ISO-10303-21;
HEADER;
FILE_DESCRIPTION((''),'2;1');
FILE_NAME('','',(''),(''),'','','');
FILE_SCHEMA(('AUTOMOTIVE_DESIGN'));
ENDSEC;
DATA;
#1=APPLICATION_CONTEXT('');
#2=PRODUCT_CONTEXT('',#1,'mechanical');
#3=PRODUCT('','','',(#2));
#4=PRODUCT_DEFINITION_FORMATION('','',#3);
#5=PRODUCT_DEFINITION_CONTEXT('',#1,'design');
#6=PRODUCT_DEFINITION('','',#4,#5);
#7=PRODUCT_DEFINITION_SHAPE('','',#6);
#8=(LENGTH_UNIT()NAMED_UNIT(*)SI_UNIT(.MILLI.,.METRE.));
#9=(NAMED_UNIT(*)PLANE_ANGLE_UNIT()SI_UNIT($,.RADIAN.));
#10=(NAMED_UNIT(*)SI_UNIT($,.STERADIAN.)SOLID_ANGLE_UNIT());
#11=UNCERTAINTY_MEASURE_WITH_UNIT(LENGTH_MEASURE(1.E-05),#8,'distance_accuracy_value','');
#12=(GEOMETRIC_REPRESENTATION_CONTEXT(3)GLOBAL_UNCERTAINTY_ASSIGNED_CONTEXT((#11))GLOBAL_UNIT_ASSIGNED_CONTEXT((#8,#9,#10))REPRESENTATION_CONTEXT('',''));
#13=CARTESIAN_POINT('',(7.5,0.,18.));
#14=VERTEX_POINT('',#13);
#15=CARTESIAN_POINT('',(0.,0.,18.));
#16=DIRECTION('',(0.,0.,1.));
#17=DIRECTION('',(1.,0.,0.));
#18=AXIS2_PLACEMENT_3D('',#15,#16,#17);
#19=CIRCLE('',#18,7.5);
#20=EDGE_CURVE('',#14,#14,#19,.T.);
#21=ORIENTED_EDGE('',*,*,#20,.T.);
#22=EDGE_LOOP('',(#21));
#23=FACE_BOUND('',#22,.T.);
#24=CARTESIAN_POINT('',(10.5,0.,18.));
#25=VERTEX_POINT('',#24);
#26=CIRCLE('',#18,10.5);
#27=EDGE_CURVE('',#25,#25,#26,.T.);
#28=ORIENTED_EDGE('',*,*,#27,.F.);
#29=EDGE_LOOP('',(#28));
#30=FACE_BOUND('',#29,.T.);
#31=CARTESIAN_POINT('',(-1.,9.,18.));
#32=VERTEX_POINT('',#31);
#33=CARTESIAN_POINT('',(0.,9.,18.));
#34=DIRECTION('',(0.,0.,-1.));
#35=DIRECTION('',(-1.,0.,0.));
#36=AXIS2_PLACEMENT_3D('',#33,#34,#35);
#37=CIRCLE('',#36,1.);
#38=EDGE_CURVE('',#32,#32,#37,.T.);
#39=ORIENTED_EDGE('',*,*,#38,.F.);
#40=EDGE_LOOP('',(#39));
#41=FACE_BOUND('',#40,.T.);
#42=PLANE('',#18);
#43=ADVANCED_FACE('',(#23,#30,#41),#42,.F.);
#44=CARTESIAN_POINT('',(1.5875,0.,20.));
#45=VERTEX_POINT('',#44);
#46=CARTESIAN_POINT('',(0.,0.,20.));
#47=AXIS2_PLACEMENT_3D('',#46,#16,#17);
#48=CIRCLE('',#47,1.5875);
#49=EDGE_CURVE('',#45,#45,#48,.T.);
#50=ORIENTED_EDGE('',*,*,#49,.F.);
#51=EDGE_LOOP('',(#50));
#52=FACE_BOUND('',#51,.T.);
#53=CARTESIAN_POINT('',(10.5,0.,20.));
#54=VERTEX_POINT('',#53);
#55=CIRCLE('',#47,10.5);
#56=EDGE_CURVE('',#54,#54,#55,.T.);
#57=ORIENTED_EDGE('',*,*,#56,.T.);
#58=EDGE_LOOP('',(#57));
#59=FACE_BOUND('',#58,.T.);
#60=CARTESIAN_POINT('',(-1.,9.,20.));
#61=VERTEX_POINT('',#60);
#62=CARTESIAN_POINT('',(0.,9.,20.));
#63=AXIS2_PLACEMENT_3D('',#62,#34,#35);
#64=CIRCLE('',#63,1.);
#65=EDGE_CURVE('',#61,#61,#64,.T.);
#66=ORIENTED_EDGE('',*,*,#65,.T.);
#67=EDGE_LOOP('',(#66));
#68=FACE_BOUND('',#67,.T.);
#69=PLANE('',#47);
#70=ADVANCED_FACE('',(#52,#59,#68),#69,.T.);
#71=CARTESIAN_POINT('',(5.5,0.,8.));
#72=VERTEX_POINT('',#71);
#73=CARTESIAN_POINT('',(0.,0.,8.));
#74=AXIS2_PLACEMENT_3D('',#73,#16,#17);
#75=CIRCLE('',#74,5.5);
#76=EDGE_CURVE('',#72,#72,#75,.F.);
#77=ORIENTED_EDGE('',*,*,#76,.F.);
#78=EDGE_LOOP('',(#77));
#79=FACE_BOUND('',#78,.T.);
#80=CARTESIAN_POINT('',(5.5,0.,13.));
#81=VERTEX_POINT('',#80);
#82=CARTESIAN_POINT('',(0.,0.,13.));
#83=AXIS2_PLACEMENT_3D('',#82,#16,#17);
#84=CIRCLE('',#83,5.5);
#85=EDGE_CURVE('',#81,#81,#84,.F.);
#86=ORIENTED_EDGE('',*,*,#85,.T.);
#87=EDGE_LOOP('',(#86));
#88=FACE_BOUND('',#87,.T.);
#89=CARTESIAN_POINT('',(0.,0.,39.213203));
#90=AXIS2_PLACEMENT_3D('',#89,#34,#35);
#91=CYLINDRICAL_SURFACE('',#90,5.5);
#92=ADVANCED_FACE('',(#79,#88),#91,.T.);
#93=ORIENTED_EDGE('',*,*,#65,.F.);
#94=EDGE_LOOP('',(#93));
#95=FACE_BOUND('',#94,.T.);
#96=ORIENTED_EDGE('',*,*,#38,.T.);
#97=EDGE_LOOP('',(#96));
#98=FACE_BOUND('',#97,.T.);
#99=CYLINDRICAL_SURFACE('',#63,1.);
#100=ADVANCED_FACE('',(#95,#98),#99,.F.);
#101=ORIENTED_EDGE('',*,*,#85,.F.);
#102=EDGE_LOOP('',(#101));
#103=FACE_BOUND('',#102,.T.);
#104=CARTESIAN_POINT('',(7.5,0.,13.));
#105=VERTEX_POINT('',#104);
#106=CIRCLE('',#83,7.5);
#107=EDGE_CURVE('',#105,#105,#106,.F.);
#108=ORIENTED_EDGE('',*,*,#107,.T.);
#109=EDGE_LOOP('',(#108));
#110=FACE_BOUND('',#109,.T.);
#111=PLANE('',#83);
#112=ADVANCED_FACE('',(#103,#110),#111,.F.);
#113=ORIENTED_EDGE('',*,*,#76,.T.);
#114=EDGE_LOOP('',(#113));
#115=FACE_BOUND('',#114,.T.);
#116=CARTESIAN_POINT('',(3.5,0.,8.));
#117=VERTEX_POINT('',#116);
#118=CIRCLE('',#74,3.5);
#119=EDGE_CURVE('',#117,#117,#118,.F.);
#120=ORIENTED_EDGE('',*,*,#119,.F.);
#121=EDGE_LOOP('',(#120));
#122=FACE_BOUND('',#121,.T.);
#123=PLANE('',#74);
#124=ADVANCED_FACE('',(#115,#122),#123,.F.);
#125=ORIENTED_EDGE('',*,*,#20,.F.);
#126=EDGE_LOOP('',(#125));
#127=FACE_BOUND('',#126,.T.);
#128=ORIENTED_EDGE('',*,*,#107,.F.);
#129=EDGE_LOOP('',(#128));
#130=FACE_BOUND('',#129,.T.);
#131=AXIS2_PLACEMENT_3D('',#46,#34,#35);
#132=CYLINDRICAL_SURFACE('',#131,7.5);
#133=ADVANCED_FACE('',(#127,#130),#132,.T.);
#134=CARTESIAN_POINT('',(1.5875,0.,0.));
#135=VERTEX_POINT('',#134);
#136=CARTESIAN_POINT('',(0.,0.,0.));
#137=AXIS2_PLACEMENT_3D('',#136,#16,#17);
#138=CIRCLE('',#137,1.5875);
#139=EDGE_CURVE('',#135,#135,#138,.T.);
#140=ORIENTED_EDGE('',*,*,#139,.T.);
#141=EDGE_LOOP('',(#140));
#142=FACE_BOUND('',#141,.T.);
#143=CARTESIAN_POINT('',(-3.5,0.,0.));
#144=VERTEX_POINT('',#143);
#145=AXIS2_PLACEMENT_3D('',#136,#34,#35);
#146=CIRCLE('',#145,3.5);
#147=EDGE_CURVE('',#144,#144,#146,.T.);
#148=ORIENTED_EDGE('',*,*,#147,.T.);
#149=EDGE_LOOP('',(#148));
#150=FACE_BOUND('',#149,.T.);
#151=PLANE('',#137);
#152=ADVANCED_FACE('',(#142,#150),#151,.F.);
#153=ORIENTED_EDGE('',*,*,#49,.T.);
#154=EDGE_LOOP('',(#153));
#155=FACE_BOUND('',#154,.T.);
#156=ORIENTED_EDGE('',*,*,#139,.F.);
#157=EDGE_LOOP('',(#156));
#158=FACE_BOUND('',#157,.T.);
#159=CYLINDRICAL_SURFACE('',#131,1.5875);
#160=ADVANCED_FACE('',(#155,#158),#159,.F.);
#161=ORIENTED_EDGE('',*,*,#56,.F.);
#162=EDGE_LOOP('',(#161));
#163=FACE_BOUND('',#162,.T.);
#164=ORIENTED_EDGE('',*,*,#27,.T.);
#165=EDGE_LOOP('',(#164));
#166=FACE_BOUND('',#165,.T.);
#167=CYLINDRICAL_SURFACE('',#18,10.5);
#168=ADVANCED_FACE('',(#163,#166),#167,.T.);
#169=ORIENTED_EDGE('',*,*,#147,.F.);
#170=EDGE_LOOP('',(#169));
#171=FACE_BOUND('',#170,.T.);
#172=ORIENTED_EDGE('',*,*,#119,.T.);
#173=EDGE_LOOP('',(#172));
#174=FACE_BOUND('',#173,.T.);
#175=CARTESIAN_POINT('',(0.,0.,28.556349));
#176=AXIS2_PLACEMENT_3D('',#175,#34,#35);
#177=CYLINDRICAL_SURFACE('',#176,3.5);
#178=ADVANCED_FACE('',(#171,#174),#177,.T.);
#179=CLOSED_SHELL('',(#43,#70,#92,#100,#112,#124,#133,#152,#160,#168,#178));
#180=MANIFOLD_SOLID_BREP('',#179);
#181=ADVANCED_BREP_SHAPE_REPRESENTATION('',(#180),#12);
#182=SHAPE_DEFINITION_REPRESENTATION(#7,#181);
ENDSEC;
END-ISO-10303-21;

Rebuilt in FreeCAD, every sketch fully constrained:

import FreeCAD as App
import Part
import Sketcher

V = App.Vector
Q = App.Units.Quantity

doc = App.newDocument("Part")
body = doc.addObject("PartDesign::Body", "Body")

sketch1 = doc.addObject("Sketcher::SketchObject", "Sketch")
body.addObject(sketch1)
sketch1.AttachmentSupport = (doc.XY_Plane, [""])
sketch1.MapMode = "FlatFace"
sketch1.addGeometry(Part.Circle(V(0, 0, 0), V(0, 0, 1), 7.5), False)
sketch1.addGeometry(Part.Circle(V(0, 0, 0), V(0, 0, 1), 1.5875), False)
sketch1.addConstraint(Sketcher.Constraint("Coincident", 0, 3, -1, 1))
sketch1.addConstraint(Sketcher.Constraint("Coincident", 1, 3, -1, 1))
sketch1.addConstraint(Sketcher.Constraint("Diameter", 0, Q("15 mm")))
sketch1.addConstraint(Sketcher.Constraint("Diameter", 1, Q("3.175 mm")))
pad1 = doc.addObject("PartDesign::Pad", "Pad")
body.addObject(pad1)
pad1.Profile = sketch1
pad1.Length = 20

sketch2 = doc.addObject("Sketcher::SketchObject", "Sketch001")
body.addObject(sketch2)
sketch2.AttachmentSupport = (doc.XY_Plane, [""])
sketch2.MapMode = "FlatFace"
sketch2.AttachmentOffset = App.Placement(V(0, 0, 20), App.Rotation())
sketch2.addGeometry(Part.Circle(V(0, 0, 0), V(0, 0, 1), 10.5), False)
sketch2.addGeometry(Part.Circle(V(0, 0, 0), V(0, 0, 1), 1.5875), False)
sketch2.addConstraint(Sketcher.Constraint("Coincident", 0, 3, -1, 1))
sketch2.addConstraint(Sketcher.Constraint("Coincident", 1, 3, -1, 1))
sketch2.addConstraint(Sketcher.Constraint("Diameter", 0, Q("21 mm")))
sketch2.addConstraint(Sketcher.Constraint("Diameter", 1, Q("3.175 mm")))
pad2 = doc.addObject("PartDesign::Pad", "Pad001")
body.addObject(pad2)
pad2.Profile = sketch2
pad2.Length = 2
pad2.Reversed = True

sketch3 = doc.addObject("Sketcher::SketchObject", "Sketch002")
body.addObject(sketch3)
sketch3.AttachmentSupport = (doc.XY_Plane, [""])
sketch3.MapMode = "FlatFace"
sketch3.AttachmentOffset = App.Placement(V(0, 0, 18), App.Rotation())
sketch3.addGeometry(Part.Circle(V(0, 9, 0), V(0, 0, 1), 1), False)
sketch3.addConstraint(Sketcher.Constraint("PointOnObject", 0, 3, -2))
sketch3.addConstraint(Sketcher.Constraint("Diameter", 0, Q("2 mm")))
sketch3.addConstraint(Sketcher.Constraint("DistanceY", -1, 1, 0, 3, Q("9 mm")))
pocket1 = doc.addObject("PartDesign::Pocket", "Pocket")
body.addObject(pocket1)
pocket1.Profile = sketch3
pocket1.Type = "ThroughAll"
pocket1.Reversed = True

sketch4 = doc.addObject("Sketcher::SketchObject", "Sketch003")
body.addObject(sketch4)
sketch4.AttachmentSupport = (doc.XY_Plane, [""])
sketch4.MapMode = "FlatFace"
sketch4.addGeometry(Part.Circle(V(0, 0, 0), V(0, 0, 1), 7.5), False)
sketch4.addGeometry(Part.Circle(V(0, 0, 0), V(0, 0, 1), 5.5), False)
sketch4.addConstraint(Sketcher.Constraint("Coincident", 0, 3, -1, 1))
sketch4.addConstraint(Sketcher.Constraint("Coincident", 1, 3, -1, 1))
sketch4.addConstraint(Sketcher.Constraint("Diameter", 0, Q("15 mm")))
sketch4.addConstraint(Sketcher.Constraint("Diameter", 1, Q("11 mm")))
pocket2 = doc.addObject("PartDesign::Pocket", "Pocket001")
body.addObject(pocket2)
pocket2.Profile = sketch4
pocket2.Length = 13
pocket2.Reversed = True

sketch5 = doc.addObject("Sketcher::SketchObject", "Sketch004")
body.addObject(sketch5)
sketch5.AttachmentSupport = (doc.XY_Plane, [""])
sketch5.MapMode = "FlatFace"
sketch5.addGeometry(Part.Circle(V(0, 0, 0), V(0, 0, 1), 5.5), False)
sketch5.addGeometry(Part.Circle(V(0, 0, 0), V(0, 0, 1), 3.5), False)
sketch5.addConstraint(Sketcher.Constraint("Coincident", 0, 3, -1, 1))
sketch5.addConstraint(Sketcher.Constraint("Coincident", 1, 3, -1, 1))
sketch5.addConstraint(Sketcher.Constraint("Diameter", 0, Q("11 mm")))
sketch5.addConstraint(Sketcher.Constraint("Diameter", 1, Q("7 mm")))
pocket3 = doc.addObject("PartDesign::Pocket", "Pocket002")
body.addObject(pocket3)
pocket3.Profile = sketch5
pocket3.Length = 8
pocket3.Reversed = True

doc.recompute()
